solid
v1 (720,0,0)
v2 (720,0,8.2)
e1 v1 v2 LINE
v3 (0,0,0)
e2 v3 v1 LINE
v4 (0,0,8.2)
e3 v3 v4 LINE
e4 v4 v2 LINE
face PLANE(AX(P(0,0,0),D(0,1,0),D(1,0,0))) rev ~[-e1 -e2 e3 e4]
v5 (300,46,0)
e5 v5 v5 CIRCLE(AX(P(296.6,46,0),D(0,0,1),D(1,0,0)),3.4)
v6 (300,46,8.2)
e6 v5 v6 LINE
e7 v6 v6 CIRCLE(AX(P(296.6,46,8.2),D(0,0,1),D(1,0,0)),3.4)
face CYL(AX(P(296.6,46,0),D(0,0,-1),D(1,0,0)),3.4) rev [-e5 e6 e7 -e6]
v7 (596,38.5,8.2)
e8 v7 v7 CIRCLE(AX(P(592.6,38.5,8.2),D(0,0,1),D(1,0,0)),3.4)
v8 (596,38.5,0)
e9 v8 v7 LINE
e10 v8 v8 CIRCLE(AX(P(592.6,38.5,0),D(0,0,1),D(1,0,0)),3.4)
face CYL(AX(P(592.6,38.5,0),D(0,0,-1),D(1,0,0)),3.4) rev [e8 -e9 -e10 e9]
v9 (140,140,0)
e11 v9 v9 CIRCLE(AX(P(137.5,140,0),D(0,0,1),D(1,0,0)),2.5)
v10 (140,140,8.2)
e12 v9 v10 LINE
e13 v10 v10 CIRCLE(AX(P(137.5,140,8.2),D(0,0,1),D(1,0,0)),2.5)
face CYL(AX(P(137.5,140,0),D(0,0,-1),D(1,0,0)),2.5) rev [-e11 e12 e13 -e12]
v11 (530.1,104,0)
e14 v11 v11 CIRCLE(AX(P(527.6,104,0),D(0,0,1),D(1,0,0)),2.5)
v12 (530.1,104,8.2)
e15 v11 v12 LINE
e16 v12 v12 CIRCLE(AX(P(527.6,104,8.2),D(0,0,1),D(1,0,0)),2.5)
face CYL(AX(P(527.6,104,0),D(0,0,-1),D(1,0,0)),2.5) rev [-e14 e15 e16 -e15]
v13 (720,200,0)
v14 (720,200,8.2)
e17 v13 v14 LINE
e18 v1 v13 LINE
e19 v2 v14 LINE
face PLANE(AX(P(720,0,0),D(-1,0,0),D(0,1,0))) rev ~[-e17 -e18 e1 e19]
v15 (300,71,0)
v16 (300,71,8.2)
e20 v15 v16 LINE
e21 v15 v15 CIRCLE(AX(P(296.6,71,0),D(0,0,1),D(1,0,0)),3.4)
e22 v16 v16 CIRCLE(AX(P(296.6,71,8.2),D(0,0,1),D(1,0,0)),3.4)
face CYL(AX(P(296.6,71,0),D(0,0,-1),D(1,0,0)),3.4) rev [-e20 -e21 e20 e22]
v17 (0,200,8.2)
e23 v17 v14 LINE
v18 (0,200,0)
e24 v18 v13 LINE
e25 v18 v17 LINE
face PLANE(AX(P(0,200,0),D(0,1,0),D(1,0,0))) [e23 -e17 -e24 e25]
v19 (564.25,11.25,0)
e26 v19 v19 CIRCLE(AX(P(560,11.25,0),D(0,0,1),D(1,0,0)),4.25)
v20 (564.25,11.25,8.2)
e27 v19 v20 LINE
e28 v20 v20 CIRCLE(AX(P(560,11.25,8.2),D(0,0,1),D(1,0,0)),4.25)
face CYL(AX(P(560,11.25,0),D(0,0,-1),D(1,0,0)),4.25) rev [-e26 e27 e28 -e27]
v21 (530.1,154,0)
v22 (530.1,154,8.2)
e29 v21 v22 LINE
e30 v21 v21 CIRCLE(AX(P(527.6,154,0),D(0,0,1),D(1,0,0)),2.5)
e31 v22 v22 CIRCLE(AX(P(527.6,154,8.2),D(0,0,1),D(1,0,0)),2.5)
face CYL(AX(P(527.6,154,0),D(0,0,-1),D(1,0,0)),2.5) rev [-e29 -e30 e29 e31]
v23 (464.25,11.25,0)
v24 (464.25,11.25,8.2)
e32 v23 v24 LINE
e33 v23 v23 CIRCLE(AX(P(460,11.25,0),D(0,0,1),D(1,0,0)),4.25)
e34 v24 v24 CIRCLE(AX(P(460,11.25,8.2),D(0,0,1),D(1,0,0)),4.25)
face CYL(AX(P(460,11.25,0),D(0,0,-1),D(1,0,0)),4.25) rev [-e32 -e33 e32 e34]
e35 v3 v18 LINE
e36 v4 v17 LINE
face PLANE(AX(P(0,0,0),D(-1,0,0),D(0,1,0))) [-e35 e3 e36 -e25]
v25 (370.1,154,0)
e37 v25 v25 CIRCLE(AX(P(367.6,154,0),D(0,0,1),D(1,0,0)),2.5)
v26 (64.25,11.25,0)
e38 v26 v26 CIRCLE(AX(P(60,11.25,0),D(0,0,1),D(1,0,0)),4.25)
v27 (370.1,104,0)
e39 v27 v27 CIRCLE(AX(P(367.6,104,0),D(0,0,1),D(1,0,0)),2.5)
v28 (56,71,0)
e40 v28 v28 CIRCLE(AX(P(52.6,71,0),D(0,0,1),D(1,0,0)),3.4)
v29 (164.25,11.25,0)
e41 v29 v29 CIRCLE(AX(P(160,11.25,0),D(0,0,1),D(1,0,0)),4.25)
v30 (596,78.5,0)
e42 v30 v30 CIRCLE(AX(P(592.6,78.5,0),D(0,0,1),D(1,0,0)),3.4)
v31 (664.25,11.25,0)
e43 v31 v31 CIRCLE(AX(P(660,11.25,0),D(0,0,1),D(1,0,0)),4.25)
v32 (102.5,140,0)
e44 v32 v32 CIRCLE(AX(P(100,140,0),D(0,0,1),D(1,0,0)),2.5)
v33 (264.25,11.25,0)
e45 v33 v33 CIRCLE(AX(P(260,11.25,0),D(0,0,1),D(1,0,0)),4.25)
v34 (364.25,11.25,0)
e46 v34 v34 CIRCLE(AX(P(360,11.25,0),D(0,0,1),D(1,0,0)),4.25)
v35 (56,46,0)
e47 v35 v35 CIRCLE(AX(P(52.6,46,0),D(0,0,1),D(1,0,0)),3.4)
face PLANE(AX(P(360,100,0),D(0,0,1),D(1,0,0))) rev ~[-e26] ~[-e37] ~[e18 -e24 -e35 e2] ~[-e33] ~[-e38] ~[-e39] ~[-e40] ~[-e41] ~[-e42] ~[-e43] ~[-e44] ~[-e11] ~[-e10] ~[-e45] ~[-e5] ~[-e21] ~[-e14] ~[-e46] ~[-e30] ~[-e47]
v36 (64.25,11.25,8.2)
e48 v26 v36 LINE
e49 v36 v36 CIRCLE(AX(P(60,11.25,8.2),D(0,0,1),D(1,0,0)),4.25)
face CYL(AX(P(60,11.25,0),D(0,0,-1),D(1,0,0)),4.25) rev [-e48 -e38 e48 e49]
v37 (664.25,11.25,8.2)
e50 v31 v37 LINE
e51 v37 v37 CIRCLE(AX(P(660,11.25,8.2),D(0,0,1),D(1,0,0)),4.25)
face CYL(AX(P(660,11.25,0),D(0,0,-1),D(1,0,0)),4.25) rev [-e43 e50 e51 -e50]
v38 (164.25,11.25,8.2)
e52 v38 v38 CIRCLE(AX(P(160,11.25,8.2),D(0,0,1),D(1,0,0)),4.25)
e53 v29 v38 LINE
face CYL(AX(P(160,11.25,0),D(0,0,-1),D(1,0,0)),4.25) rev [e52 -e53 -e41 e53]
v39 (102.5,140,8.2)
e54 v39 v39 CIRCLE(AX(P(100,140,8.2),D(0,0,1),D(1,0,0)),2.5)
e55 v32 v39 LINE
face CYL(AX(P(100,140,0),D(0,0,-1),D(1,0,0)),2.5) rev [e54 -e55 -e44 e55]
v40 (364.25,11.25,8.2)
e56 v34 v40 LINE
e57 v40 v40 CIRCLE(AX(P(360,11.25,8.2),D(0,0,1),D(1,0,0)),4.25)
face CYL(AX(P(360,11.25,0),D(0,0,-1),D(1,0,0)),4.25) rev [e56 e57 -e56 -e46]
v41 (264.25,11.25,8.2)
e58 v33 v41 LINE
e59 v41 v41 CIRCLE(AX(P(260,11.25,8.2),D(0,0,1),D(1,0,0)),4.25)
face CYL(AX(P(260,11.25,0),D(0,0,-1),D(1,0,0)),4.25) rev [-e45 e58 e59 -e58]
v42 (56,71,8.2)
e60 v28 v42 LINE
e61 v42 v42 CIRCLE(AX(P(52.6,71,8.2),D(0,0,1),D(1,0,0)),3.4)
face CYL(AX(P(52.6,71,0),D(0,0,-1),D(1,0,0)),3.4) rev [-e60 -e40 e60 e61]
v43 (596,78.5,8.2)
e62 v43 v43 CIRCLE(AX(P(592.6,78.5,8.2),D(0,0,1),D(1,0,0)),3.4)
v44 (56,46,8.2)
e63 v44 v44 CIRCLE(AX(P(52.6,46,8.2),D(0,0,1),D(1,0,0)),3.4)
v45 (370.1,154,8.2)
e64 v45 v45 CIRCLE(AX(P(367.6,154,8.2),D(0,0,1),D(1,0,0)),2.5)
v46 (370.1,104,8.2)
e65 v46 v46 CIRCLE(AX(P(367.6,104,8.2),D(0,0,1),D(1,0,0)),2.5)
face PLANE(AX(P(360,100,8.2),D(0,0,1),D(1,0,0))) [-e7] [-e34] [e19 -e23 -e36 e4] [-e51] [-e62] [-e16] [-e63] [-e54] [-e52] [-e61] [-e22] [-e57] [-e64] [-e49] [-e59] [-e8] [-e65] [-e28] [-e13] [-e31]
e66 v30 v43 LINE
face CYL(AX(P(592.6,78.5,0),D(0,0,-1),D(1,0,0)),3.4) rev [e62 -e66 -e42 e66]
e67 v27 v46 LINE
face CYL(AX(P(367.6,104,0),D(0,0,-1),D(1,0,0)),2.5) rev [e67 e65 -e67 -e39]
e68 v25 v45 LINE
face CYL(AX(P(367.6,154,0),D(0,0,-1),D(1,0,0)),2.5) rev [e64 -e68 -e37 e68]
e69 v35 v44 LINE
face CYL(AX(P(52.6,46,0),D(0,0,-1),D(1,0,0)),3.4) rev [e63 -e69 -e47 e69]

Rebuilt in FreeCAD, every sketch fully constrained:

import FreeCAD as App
import Part
import Sketcher
from FreeCAD import Vector


def add_polygon(sketch, points):
    """Adds a closed chain of lines whose ends are joined by coincident constraints."""
    first, n = sketch.GeometryCount, len(points)
    for a, b in zip(points, points[1:] + points[:1]):
        sketch.addGeometry(Part.LineSegment(App.Vector(*a, 0), App.Vector(*b, 0)), False)
    for i in range(n):
        sketch.addConstraint(Sketcher.Constraint("Coincident", first + i, 2, first + (i + 1) % n, 1))

doc = App.newDocument("Part")
body = doc.addObject("PartDesign::Body", "Body")

sketch1 = doc.addObject("Sketcher::SketchObject", "Sketch")
body.addObject(sketch1)
sketch1.AttachmentSupport = (doc.XY_Plane, [""])
sketch1.MapMode = "FlatFace"
add_polygon(sketch1, [(0, 200), (0, 0), (720, 0), (720, 200)])
sketch1.addGeometry(Part.Circle(Vector(60, 11.25, 0), Vector(0, 0, 1), 4.25), False)
sketch1.addGeometry(Part.Circle(Vector(160, 11.25, 0), Vector(0, 0, 1), 4.25), False)
sketch1.addGeometry(Part.Circle(Vector(260, 11.25, 0), Vector(0, 0, 1), 4.25), False)
sketch1.addGeometry(Part.Circle(Vector(52.6, 46, 0), Vector(0, 0, 1), 3.4), False)
sketch1.addGeometry(Part.Circle(Vector(52.6, 71, 0), Vector(0, 0, 1), 3.4), False)
sketch1.addGeometry(Part.Circle(Vector(296.6, 46, 0), Vector(0, 0, 1), 3.4), False)
sketch1.addGeometry(Part.Circle(Vector(296.6, 71, 0), Vector(0, 0, 1), 3.4), False)
sketch1.addGeometry(Part.Circle(Vector(360, 11.25, 0), Vector(0, 0, 1), 4.25), False)
sketch1.addGeometry(Part.Circle(Vector(460, 11.25, 0), Vector(0, 0, 1), 4.25), False)
sketch1.addGeometry(Part.Circle(Vector(560, 11.25, 0), Vector(0, 0, 1), 4.25), False)
sketch1.addGeometry(Part.Circle(Vector(660, 11.25, 0), Vector(0, 0, 1), 4.25), False)
sketch1.addGeometry(Part.Circle(Vector(592.6, 38.5, 0), Vector(0, 0, 1), 3.4), False)
sketch1.addGeometry(Part.Circle(Vector(592.6, 78.5, 0), Vector(0, 0, 1), 3.4), False)
sketch1.addGeometry(Part.Circle(Vector(100, 140, 0), Vector(0, 0, 1), 2.5), False)
sketch1.addGeometry(Part.Circle(Vector(137.5, 140, 0), Vector(0, 0, 1), 2.5), False)
sketch1.addGeometry(Part.Circle(Vector(367.6, 104, 0), Vector(0, 0, 1), 2.5), False)
sketch1.addGeometry(Part.Circle(Vector(527.6, 104, 0), Vector(0, 0, 1), 2.5), False)
sketch1.addGeometry(Part.Circle(Vector(367.6, 154, 0), Vector(0, 0, 1), 2.5), False)
sketch1.addGeometry(Part.Circle(Vector(527.6, 154, 0), Vector(0, 0, 1), 2.5), False)
sketch1.addConstraint(Sketcher.Constraint("Vertical", 0))
sketch1.addConstraint(Sketcher.Constraint("Horizontal", 1))
sketch1.addConstraint(Sketcher.Constraint("Vertical", 2))
sketch1.addConstraint(Sketcher.Constraint("Horizontal", 3))
sketch1.addConstraint(Sketcher.Constraint("Coincident", 0, 2, -1, 1))
sketch1.addConstraint(Sketcher.Constraint("Equal", 4, 5))
sketch1.addConstraint(Sketcher.Constraint("Equal", 5, 6))
sketch1.addConstraint(Sketcher.Constraint("Equal", 7, 8))
sketch1.addConstraint(Sketcher.Constraint("Equal", 8, 9))
sketch1.addConstraint(Sketcher.Constraint("Equal", 9, 10))
sketch1.addConstraint(Sketcher.Constraint("Equal", 6, 11))
sketch1.addConstraint(Sketcher.Constraint("Equal", 11, 12))
sketch1.addConstraint(Sketcher.Constraint("Equal", 12, 13))
sketch1.addConstraint(Sketcher.Constraint("Equal", 13, 14))
sketch1.addConstraint(Sketcher.Constraint("Equal", 10, 15))
sketch1.addConstraint(Sketcher.Constraint("Equal", 15, 16))
sketch1.addConstraint(Sketcher.Constraint("Equal", 17, 18))
sketch1.addConstraint(Sketcher.Constraint("Equal", 18, 19))
sketch1.addConstraint(Sketcher.Constraint("Equal", 19, 20))
sketch1.addConstraint(Sketcher.Constraint("Equal", 20, 21))
sketch1.addConstraint(Sketcher.Constraint("Equal", 21, 22))
sketch1.addConstraint(Sketcher.Constraint("Horizontal", 4, 3, 5, 3))
sketch1.addConstraint(Sketcher.Constraint("Horizontal", 5, 3, 6, 3))
sketch1.addConstraint(Sketcher.Constraint("Horizontal", 7, 3, 9, 3))
sketch1.addConstraint(Sketcher.Constraint("Horizontal", 8, 3, 10, 3))
sketch1.addConstraint(Sketcher.Constraint("Horizontal", 6, 3, 11, 3))
sketch1.addConstraint(Sketcher.Constraint("Horizontal", 11, 3, 12, 3))
sketch1.addConstraint(Sketcher.Constraint("Horizontal", 12, 3, 13, 3))
sketch1.addConstraint(Sketcher.Constraint("Horizontal", 13, 3, 14, 3))
sketch1.addConstraint(Sketcher.Constraint("Horizontal", 17, 3, 18, 3))
sketch1.addConstraint(Sketcher.Constraint("Horizontal", 19, 3, 20, 3))
sketch1.addConstraint(Sketcher.Constraint("Horizontal", 21, 3, 22, 3))
sketch1.addConstraint(Sketcher.Constraint("Vertical", 7, 3, 8, 3))
sketch1.addConstraint(Sketcher.Constraint("Vertical", 9, 3, 10, 3))
sketch1.addConstraint(Sketcher.Constraint("Vertical", 15, 3, 16, 3))
sketch1.addConstraint(Sketcher.Constraint("Vertical", 19, 3, 21, 3))
sketch1.addConstraint(Sketcher.Constraint("Vertical", 20, 3, 22, 3))
sketch1.addConstraint(Sketcher.Constraint("Diameter", 17, 5.0))
sketch1.addConstraint(Sketcher.Constraint("Diameter", 4, 8.5))
sketch1.addConstraint(Sketcher.Constraint("Diameter", 7, 6.8))
sketch1.addConstraint(Sketcher.Constraint("DistanceX", 1, 1, 1, 2, 720.0))
sketch1.addConstraint(Sketcher.Constraint("DistanceY", 0, 2, 0, 1, 200.0))
sketch1.addConstraint(Sketcher.Constraint("DistanceX", -1, 1, 4, 3, 60.0))
sketch1.addConstraint(Sketcher.Constraint("DistanceX", -1, 1, 5, 3, 160.0))
sketch1.addConstraint(Sketcher.Constraint("DistanceX", -1, 1, 6, 3, 260.0))
sketch1.addConstraint(Sketcher.Constraint("DistanceY", -1, 1, 7, 3, 46.0))
sketch1.addConstraint(Sketcher.Constraint("DistanceY", -1, 1, 8, 3, 71.0))
sketch1.addConstraint(Sketcher.Constraint("DistanceX", -1, 1, 11, 3, 360.0))
sketch1.addConstraint(Sketcher.Constraint("DistanceX", -1, 1, 12, 3, 460.0))
sketch1.addConstraint(Sketcher.Constraint("DistanceX", -1, 1, 13, 3, 560.0))
sketch1.addConstraint(Sketcher.Constraint("DistanceX", -1, 1, 14, 3, 660.0))
sketch1.addConstraint(Sketcher.Constraint("DistanceX", -1, 1, 17, 3, 100.0))
sketch1.addConstraint(Sketcher.Constraint("DistanceY", -1, 1, 17, 3, 140.0))
sketch1.addConstraint(Sketcher.Constraint("DistanceY", -1, 1, 19, 3, 104.0))
sketch1.addConstraint(Sketcher.Constraint("DistanceY", -1, 1, 21, 3, 154.0))
sketch1.addConstraint(Sketcher.Constraint("DistanceX", 7, 3, 9, 3, 244.0))
sketch1.addConstraint(Sketcher.Constraint("DistanceX", 9, 3, 15, 3, 296.0))
sketch1.addConstraint(Sketcher.Constraint("DistanceY", 15, 3, 16, 3, 40.0))
sketch1.addConstraint(Sketcher.Constraint("DistanceX", 10, 3, 19, 3, 71.0))
sketch1.addConstraint(Sketcher.Constraint("DistanceX", 20, 3, 16, 3, 65.0))
sketch1.addConstraint(Sketcher.Constraint("DistanceX", -1, 1, 7, 3, 52.6))
sketch1.addConstraint(Sketcher.Constraint("DistanceY", -1, 1, 15, 3, 38.5))
sketch1.addConstraint(Sketcher.Constraint("DistanceX", -1, 1, 18, 3, 137.5))
sketch1.addConstraint(Sketcher.Constraint("DistanceY", -1, 1, 4, 3, 11.25))
pad1 = doc.addObject("PartDesign::Pad", "Pad")
body.addObject(pad1)
pad1.Profile = sketch1
pad1.Length = 8.2

doc.recompute()
